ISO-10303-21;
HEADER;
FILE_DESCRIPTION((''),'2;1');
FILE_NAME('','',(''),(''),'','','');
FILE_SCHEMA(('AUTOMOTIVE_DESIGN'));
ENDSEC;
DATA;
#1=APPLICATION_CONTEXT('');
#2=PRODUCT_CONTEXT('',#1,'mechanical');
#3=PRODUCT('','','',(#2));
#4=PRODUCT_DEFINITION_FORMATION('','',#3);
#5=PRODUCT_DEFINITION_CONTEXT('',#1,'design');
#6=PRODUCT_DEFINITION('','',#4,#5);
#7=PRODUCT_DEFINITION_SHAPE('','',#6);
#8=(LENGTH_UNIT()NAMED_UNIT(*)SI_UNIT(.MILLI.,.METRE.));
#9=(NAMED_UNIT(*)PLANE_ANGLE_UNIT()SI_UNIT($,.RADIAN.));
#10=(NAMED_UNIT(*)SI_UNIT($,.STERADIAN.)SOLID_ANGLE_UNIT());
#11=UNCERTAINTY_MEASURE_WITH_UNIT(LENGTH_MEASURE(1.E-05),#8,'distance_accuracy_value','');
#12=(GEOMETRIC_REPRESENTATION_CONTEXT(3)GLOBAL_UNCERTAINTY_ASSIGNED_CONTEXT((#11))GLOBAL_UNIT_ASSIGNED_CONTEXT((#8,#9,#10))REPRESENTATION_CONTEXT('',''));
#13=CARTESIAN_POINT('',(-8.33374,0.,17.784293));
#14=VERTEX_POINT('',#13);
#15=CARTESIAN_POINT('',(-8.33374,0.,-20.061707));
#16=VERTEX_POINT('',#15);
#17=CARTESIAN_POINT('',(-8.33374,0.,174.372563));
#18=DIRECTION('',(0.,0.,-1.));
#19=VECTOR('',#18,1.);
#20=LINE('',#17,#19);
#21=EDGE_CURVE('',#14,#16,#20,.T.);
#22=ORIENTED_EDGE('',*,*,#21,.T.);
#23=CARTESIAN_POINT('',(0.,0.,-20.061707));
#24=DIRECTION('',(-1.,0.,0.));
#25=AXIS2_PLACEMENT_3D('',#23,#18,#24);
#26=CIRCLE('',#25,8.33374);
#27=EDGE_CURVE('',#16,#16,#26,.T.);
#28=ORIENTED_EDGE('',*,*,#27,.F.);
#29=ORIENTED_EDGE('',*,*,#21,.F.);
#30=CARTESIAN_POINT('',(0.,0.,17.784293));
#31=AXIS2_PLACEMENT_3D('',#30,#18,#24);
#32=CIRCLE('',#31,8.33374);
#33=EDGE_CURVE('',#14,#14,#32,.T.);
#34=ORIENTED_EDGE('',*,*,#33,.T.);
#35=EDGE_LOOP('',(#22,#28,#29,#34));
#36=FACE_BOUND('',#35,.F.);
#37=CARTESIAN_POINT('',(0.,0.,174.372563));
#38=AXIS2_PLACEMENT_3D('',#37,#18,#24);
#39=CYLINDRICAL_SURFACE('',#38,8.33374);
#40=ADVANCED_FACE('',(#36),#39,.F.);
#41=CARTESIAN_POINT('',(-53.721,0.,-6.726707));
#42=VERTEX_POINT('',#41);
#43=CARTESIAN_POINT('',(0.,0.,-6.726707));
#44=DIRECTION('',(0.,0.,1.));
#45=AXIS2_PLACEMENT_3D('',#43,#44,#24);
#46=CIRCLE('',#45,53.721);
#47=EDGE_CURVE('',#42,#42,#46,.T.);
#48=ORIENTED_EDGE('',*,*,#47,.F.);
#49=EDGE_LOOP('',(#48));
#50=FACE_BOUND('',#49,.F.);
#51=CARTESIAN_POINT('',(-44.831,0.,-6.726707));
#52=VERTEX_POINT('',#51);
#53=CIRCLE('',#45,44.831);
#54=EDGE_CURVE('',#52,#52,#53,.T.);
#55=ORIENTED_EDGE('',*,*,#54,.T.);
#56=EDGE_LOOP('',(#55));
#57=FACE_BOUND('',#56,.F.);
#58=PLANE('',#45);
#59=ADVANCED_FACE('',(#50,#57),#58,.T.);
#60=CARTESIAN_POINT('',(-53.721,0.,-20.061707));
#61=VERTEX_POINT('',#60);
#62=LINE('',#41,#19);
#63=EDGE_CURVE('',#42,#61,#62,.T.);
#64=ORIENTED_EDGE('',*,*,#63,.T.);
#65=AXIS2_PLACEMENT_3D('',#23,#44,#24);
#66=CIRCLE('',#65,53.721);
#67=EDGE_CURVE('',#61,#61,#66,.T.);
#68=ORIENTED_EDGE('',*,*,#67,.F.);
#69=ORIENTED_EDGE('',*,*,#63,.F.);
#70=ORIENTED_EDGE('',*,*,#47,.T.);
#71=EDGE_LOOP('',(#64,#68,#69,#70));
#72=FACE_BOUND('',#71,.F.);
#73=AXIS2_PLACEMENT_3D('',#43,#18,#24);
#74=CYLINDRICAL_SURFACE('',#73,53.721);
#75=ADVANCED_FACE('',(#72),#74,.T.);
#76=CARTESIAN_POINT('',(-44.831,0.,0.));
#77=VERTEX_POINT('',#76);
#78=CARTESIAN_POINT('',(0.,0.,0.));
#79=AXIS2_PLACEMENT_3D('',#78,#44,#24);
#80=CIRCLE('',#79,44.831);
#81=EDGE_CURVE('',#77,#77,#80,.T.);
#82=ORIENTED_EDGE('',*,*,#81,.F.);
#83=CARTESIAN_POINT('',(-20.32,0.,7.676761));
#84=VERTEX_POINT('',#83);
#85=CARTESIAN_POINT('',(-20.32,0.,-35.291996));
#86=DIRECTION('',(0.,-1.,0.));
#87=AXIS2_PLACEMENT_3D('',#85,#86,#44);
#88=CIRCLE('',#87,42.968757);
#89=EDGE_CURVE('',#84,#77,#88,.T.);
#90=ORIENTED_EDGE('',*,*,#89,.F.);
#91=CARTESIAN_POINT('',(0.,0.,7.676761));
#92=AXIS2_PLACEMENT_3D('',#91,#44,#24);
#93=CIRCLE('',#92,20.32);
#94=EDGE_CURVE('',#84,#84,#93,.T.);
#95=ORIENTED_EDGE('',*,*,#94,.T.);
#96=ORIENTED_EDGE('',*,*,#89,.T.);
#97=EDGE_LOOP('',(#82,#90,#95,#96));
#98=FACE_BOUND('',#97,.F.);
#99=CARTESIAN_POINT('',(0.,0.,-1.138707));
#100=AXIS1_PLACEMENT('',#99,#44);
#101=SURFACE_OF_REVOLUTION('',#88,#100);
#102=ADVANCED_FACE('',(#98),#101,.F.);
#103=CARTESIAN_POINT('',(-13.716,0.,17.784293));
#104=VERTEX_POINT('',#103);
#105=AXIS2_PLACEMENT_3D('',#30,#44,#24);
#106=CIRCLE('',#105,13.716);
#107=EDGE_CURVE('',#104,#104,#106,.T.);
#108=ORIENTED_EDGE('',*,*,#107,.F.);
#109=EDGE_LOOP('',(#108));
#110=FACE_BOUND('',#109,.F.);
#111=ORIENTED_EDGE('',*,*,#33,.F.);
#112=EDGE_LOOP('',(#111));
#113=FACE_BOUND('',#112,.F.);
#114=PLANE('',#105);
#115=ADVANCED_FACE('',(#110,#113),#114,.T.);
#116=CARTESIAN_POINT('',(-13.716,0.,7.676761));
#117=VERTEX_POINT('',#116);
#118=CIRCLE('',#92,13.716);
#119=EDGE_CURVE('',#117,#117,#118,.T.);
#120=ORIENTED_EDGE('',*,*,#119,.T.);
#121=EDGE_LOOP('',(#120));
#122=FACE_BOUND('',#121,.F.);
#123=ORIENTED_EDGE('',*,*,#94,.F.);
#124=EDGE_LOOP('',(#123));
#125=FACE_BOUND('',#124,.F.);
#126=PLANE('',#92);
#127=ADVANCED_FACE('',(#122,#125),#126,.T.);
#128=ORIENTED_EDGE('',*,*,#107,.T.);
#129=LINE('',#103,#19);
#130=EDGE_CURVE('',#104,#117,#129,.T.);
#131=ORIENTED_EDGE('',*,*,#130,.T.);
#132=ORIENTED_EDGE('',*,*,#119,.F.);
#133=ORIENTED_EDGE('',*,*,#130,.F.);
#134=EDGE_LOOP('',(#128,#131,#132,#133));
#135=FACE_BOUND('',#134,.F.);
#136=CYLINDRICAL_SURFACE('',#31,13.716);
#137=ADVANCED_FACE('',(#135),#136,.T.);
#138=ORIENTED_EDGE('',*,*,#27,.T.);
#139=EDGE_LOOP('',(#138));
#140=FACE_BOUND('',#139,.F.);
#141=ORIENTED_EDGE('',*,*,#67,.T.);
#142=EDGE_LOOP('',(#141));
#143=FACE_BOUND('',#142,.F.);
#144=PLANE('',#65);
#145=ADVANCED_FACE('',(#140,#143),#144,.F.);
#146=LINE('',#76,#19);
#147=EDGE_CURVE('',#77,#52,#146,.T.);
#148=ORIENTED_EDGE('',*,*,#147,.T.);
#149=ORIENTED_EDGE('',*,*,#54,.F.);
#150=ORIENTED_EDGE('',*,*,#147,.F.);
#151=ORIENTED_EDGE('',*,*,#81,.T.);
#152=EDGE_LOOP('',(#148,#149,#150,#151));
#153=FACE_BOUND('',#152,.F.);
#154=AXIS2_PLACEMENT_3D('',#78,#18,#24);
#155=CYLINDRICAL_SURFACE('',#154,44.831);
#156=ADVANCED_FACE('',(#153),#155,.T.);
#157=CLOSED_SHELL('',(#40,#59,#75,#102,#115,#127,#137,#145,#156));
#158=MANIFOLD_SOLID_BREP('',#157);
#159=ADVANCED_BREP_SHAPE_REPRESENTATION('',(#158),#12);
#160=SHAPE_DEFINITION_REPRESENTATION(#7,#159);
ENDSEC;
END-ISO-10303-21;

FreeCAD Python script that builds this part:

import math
import FreeCAD as App
import Part
import Sketcher

V = App.Vector
Q = App.Units.Quantity

doc = App.newDocument("Part")
body = doc.addObject("PartDesign::Body", "Body")

# Sketch on XZ plane
sketch1 = body.newObject("Sketcher::SketchObject", "Sketch")
sketch1.AttachmentSupport = (doc.getObject("XZ_Plane"), [""])
sketch1.MapMode = "FlatFace"
sketch1.addGeometry([
    Part.LineSegment(V(-45, -7, 0), V(-54, -7, 0)),  # 0
    Part.LineSegment(V(-54, -7, 0), V(-54, -20, 0)),  # 1
    Part.LineSegment(V(-54, -20, 0), V(0, -20, 0)),  # 2
    Part.LineSegment(V(0, -20, 0), V(0, 18, 0)),  # 3
    Part.LineSegment(V(0, 18, 0), V(-14, 18, 0)),  # 4
    Part.LineSegment(V(-14, 18, 0), V(-14, 8, 0)),  # 5
    Part.LineSegment(V(-14, 8, 0), V(-20, 8, 0)),  # 6
    Part.ArcOfCircle(Part.Circle(V(-20, -35, 0), V(0, 0, 1), 43), math.radians(90), math.radians(125)),  # 7
    Part.LineSegment(V(-45, 0, 0), V(-45, -7, 0)),  # 8
], False)
sketch1.addConstraint([
    Sketcher.Constraint("Coincident", 0, 2, 1, 1),
    Sketcher.Constraint("Coincident", 1, 2, 2, 1),
    Sketcher.Constraint("Coincident", 2, 2, 3, 1),
    Sketcher.Constraint("Coincident", 3, 2, 4, 1),
    Sketcher.Constraint("Coincident", 4, 2, 5, 1),
    Sketcher.Constraint("Coincident", 5, 2, 6, 1),
    Sketcher.Constraint("Tangent", 6, 2, 7, 1),
    Sketcher.Constraint("Coincident", 7, 2, 8, 1),
    Sketcher.Constraint("Coincident", 8, 2, 0, 1),
    Sketcher.Constraint("Horizontal", 0),
    Sketcher.Constraint("Vertical", 1),
    Sketcher.Constraint("Horizontal", 2),
    Sketcher.Constraint("Vertical", 3),
    Sketcher.Constraint("Horizontal", 4),
    Sketcher.Constraint("Vertical", 5),
    Sketcher.Constraint("Horizontal", 6),
    Sketcher.Constraint("Vertical", 8),
    Sketcher.Constraint("PointOnObject", 2, 2, -2),
    Sketcher.Constraint("PointOnObject", 7, 2, -1),
    Sketcher.Constraint("DistanceX", 0, 2, 0, 1, Q("0.35 in")),
    Sketcher.Constraint("DistanceX", 4, 2, 4, 1, Q("0.54 in")),
    Sketcher.Constraint("DistanceX", 6, 2, 6, 1, Q("0.26 in")),
    Sketcher.Constraint("DistanceY", 3, 1, 3, 2, Q("1.49 in")),
    Sketcher.Constraint("DistanceX", 2, 1, 2, 2, Q("2.115 in")),
    Sketcher.Constraint("DistanceY", 1, 2, 1, 1, Q("0.525 in")),
    Sketcher.Constraint("Radius", 7, 42.968757),
    Sketcher.Constraint("DistanceY", 5, 2, 5, 1, 10.107532),
])
revolution = body.newObject("PartDesign::Revolution", "Revolution")
revolution.Profile = sketch1
revolution.ReferenceAxis = (sketch1, ["V_Axis"])
revolution.Angle = 360

# Sketch on XY plane
sketch2 = body.newObject("Sketcher::SketchObject", "Sketch001")
sketch2.AttachmentSupport = (doc.getObject("XY_Plane"), [""])
sketch2.MapMode = "FlatFace"
sketch2.AttachmentOffset = App.Placement(V(0, 0, 17.784293), App.Rotation())
sketch2.addGeometry(Part.Circle(V(0, 0, 0), V(0, 0, 1), 8), False)
sketch2.addConstraint([
    Sketcher.Constraint("Coincident", 0, 3, -1, 1),
    Sketcher.Constraint("Diameter", 0, Q("0.6562 in")),
])
doc.recompute()
hole = body.newObject("PartDesign::Hole", "Hole")
hole.Profile = sketch2
hole.ThreadType = "None"
hole.Diameter = Q("0.6562 in")
hole.DepthType = "ThroughAll"

doc.recompute()
